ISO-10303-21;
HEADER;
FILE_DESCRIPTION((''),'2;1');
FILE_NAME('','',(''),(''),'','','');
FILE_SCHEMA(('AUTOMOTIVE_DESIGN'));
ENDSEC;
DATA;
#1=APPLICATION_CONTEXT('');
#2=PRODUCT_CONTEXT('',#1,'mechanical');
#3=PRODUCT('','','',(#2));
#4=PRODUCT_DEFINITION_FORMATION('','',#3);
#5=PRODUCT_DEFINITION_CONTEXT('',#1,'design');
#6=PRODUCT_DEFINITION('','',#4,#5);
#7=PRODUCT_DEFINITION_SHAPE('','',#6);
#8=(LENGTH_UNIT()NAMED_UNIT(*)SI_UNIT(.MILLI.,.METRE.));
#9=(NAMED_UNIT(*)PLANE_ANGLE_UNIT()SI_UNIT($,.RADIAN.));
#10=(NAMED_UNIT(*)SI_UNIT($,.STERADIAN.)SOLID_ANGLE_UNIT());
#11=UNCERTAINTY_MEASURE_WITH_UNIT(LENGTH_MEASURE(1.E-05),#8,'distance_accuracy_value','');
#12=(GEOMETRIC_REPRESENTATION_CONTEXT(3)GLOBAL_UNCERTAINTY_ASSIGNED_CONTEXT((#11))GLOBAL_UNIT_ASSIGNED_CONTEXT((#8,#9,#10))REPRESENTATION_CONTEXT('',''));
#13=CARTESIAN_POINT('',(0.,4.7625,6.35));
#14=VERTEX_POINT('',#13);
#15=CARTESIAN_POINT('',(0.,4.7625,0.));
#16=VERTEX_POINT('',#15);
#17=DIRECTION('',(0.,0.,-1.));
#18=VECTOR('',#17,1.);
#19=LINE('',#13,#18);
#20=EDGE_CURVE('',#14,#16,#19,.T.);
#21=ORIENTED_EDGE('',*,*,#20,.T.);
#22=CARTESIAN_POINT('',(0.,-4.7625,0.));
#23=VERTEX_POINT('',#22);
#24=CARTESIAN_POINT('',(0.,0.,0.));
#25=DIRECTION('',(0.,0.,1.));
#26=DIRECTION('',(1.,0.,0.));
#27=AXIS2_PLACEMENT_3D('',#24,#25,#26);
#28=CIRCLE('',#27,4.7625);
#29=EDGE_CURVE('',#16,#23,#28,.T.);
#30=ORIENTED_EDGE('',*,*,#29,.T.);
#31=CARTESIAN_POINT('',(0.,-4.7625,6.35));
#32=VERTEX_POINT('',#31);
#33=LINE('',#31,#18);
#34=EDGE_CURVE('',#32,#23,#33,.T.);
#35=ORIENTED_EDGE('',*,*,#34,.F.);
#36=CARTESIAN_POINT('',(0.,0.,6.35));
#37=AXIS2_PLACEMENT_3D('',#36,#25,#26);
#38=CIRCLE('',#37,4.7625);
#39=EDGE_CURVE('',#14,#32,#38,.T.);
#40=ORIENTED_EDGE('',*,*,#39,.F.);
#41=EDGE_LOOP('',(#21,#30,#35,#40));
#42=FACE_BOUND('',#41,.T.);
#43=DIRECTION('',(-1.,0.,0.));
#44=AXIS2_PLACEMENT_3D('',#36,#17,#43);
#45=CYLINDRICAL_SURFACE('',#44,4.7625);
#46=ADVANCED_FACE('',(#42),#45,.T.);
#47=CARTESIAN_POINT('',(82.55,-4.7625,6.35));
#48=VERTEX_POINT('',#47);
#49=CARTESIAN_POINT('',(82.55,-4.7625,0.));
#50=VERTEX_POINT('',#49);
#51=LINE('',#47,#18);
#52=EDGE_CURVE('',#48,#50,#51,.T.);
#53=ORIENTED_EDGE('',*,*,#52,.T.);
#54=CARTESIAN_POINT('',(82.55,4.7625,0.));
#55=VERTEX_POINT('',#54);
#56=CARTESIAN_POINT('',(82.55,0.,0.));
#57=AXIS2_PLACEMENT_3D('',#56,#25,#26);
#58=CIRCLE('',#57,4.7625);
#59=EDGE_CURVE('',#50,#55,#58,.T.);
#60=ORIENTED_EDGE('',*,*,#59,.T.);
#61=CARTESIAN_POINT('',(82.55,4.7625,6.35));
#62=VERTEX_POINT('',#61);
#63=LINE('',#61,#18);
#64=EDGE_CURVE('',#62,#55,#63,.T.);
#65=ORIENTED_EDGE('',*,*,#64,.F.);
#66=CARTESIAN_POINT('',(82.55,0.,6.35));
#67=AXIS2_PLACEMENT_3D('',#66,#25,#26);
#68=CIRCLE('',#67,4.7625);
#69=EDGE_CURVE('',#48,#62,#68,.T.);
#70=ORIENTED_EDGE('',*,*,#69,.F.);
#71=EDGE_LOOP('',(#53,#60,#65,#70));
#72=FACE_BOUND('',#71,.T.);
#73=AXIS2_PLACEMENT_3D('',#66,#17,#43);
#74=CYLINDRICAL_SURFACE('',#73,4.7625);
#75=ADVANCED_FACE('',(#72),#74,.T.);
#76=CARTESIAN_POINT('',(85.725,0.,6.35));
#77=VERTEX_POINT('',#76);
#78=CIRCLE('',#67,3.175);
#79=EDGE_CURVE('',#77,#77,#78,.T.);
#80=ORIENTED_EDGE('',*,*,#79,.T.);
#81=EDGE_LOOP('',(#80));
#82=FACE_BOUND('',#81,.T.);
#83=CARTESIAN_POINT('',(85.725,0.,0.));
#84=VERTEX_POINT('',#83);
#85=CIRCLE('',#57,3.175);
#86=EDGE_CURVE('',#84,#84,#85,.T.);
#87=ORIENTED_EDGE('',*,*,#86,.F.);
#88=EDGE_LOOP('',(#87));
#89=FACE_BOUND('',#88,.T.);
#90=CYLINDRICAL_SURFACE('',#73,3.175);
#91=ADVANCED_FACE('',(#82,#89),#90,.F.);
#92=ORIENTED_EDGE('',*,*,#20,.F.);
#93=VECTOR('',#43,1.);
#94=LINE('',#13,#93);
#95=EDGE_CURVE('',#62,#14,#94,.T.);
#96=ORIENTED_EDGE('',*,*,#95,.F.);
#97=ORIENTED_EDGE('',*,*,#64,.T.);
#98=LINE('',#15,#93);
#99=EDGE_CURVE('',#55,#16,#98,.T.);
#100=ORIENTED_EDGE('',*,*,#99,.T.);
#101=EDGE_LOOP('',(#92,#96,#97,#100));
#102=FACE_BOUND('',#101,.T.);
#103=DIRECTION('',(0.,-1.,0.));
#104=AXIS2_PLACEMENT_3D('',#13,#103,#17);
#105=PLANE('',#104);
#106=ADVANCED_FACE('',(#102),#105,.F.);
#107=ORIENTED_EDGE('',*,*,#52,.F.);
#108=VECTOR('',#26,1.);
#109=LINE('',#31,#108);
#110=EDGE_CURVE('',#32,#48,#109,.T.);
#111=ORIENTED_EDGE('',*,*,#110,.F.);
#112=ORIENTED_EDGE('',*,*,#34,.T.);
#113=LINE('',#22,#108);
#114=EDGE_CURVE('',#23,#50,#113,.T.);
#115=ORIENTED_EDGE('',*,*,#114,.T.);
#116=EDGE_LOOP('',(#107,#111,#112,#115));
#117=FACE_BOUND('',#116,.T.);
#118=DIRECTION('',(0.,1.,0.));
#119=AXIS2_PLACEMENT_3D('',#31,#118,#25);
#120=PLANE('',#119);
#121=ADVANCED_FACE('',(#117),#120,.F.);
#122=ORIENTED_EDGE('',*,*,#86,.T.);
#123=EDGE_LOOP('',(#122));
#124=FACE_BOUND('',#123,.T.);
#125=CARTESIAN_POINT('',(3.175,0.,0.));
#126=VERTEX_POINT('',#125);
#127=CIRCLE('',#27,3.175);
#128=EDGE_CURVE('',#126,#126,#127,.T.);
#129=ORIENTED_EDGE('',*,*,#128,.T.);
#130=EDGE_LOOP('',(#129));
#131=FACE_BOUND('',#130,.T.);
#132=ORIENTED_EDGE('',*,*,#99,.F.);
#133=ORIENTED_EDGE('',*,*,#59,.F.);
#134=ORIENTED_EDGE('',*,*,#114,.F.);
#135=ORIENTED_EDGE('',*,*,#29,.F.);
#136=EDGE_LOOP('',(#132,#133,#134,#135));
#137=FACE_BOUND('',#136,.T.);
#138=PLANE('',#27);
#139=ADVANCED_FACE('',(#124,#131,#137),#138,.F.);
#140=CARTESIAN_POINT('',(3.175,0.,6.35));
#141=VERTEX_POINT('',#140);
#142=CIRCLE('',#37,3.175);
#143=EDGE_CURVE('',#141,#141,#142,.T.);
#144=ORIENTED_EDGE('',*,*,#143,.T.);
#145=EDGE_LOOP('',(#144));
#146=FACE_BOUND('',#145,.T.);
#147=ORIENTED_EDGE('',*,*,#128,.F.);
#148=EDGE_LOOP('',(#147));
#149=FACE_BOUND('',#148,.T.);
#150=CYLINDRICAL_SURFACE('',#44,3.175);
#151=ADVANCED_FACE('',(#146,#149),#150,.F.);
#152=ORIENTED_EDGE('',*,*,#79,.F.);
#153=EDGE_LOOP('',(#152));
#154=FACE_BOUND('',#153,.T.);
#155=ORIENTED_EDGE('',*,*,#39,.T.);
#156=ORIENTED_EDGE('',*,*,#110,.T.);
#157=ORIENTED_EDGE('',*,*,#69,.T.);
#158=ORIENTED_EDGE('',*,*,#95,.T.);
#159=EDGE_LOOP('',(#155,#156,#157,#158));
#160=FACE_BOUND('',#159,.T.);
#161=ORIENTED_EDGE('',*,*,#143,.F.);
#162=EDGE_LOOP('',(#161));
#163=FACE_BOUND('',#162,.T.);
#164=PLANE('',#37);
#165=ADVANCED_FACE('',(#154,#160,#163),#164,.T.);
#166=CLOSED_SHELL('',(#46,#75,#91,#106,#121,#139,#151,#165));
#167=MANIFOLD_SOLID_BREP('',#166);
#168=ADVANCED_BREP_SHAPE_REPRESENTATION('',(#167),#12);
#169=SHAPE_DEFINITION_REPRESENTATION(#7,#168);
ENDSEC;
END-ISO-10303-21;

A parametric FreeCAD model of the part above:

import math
import FreeCAD as App
import Part
import Sketcher
from FreeCAD import Vector
Q = App.Units.Quantity

doc = App.newDocument("Part")
body = doc.addObject("PartDesign::Body", "Body")

# Sketch on XY plane
sketch1 = doc.addObject("Sketcher::SketchObject", "Sketch")
body.addObject(sketch1)
sketch1.AttachmentSupport = (doc.XY_Plane, [""])
sketch1.MapMode = "FlatFace"
sketch1.addGeometry([
    Part.LineSegment(Vector(82.5, 4.8, 0), Vector(0, 4.8, 0)),  # 0
    Part.ArcOfCircle(Part.Circle(Vector(0, 0, 0), Vector(0, 0, 1), 4.8), math.radians(90), math.radians(270)),  # 1
    Part.LineSegment(Vector(0, -4.8, 0), Vector(82.5, -4.8, 0)),  # 2
    Part.ArcOfCircle(Part.Circle(Vector(82.5, 0, 0), Vector(0, 0, 1), 4.8), math.radians(-90), math.radians(90)),  # 3
    Part.Circle(Vector(82.5, 0, 0), Vector(0, 0, 1), 3.2),  # 4
    Part.Circle(Vector(0, 0, 0), Vector(0, 0, 1), 3.2),  # 5
], False)
sketch1.addConstraint([
    Sketcher.Constraint("Tangent", 0, 2, 1, 1),
    Sketcher.Constraint("Tangent", 1, 2, 2, 1),
    Sketcher.Constraint("Tangent", 2, 2, 3, 1),
    Sketcher.Constraint("Tangent", 3, 2, 0, 1),
    Sketcher.Constraint("Horizontal", 0),
    Sketcher.Constraint("Horizontal", 2),
    Sketcher.Constraint("Coincident", 1, 3, -1, 1),
    Sketcher.Constraint("Coincident", 5, 3, -1, 1),
    Sketcher.Constraint("Coincident", 4, 3, 3, 3),
    Sketcher.Constraint("Equal", 4, 5),
    Sketcher.Constraint("Diameter", 4, Q("0.25 in")),
    Sketcher.Constraint("Radius", 1, Q("0.1875 in")),
    Sketcher.Constraint("DistanceX", 0, 2, 0, 1, Q("3.25 in")),
])
pad1 = doc.addObject("PartDesign::Pad", "Pad")
body.addObject(pad1)
pad1.Profile = sketch1
pad1.Length = Q("0.25 in")

doc.recompute()
